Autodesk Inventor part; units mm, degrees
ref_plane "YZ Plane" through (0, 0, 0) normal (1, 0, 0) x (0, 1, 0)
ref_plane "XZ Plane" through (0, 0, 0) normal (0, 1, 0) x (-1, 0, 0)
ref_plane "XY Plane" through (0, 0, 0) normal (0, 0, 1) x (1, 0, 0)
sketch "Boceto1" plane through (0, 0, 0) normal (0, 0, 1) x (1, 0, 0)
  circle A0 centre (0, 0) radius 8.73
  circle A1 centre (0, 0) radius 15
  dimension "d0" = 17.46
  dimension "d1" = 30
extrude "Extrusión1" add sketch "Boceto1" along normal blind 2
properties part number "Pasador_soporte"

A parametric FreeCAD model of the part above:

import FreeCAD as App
import Part
import Sketcher

V = App.Vector
Q = App.Units.Quantity

doc = App.newDocument("Part")
body = doc.addObject("PartDesign::Body", "Body")

# Sketch on XY plane
sketch1 = doc.addObject("Sketcher::SketchObject", "Sketch")
body.addObject(sketch1)
sketch1.AttachmentSupport = (doc.XY_Plane, [""])
sketch1.MapMode = "FlatFace"
sketch1.addGeometry(Part.Circle(V(0, 0, 0), V(0, 0, 1), 15), False)
sketch1.addGeometry(Part.Circle(V(0, 0, 0), V(0, 0, 1), 8.73), False)
sketch1.addConstraint(Sketcher.Constraint("Coincident", 0, 3, -1, 1))
sketch1.addConstraint(Sketcher.Constraint("Coincident", 1, 3, -1, 1))
sketch1.addConstraint(Sketcher.Constraint("Diameter", 0, Q("30 mm")))
sketch1.addConstraint(Sketcher.Constraint("Diameter", 1, Q("17.46 mm")))
pad1 = doc.addObject("PartDesign::Pad", "Pad")
body.addObject(pad1)
pad1.Profile = sketch1
pad1.Length = 2

doc.recompute()
